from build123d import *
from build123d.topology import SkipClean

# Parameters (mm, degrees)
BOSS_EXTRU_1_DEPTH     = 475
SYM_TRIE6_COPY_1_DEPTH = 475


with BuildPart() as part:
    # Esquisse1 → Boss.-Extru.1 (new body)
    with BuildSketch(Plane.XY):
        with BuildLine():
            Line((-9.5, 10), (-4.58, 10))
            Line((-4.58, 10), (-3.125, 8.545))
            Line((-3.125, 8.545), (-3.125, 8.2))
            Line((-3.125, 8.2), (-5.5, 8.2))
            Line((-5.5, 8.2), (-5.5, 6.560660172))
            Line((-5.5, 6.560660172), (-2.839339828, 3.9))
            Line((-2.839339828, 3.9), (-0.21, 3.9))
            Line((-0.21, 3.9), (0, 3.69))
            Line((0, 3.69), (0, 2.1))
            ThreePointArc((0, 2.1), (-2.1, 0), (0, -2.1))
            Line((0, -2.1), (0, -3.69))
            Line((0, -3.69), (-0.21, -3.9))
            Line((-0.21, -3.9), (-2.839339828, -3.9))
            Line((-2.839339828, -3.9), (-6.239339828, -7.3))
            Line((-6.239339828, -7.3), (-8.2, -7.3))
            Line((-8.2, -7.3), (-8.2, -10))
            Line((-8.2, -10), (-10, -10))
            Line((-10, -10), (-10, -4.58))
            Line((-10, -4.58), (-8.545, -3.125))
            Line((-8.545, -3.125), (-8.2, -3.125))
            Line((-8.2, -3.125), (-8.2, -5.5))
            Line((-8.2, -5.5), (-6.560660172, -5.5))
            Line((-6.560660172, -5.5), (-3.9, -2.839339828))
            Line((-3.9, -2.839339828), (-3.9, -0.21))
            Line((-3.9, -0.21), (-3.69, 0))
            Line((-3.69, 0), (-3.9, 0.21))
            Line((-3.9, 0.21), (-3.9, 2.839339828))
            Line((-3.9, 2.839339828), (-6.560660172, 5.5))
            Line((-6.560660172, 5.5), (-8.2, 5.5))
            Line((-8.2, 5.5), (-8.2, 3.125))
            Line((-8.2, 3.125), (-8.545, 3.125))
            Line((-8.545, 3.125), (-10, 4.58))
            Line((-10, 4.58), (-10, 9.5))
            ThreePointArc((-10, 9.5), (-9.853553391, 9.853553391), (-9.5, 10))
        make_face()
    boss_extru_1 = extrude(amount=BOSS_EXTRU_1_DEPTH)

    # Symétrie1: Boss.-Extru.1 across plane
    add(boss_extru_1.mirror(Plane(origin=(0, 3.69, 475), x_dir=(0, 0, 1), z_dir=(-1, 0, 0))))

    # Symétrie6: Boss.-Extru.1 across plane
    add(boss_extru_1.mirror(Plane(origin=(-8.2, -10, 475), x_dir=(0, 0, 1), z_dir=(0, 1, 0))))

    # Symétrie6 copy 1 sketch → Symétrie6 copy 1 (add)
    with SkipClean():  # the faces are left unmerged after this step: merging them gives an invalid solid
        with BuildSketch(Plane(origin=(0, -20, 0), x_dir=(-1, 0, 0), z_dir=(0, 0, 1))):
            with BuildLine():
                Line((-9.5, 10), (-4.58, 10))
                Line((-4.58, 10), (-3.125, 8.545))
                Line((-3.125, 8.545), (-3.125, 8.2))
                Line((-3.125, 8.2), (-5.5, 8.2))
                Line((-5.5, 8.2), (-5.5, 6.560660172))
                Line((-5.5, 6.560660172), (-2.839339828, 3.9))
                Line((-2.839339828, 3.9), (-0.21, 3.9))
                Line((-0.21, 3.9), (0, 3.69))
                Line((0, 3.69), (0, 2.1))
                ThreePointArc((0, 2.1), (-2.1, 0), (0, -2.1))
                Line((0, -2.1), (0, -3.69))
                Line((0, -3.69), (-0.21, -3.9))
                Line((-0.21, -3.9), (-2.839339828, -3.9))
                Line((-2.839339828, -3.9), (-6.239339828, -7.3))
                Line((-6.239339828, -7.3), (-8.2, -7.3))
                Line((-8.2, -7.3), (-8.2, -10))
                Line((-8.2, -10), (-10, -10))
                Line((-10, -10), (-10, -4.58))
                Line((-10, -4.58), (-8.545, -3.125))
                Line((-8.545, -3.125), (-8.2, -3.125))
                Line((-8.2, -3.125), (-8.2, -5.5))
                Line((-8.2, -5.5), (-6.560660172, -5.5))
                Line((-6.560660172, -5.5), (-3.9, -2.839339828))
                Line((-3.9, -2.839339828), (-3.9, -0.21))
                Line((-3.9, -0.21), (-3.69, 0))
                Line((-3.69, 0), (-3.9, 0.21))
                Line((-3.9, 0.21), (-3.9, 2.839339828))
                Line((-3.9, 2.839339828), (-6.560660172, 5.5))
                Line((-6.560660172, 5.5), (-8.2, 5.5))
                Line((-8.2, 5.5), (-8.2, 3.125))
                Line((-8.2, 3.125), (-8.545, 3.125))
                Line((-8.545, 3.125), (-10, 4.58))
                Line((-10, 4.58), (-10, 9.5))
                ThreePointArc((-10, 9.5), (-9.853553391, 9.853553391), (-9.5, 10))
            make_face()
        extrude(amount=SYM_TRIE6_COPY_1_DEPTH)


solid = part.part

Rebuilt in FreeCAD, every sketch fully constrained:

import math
import FreeCAD as App
import Part
import Sketcher
from FreeCAD import Vector
Q = App.Units.Quantity

doc = App.newDocument("Part")
body = doc.addObject("PartDesign::Body", "Body")

# Sketch on XY plane
sketch1 = body.newObject("Sketcher::SketchObject", "Sketch")
sketch1.AttachmentSupport = (doc.getObject("XY_Plane"), [""])
sketch1.MapMode = "FlatFace"
sketch1.addGeometry([
    Part.LineSegment(Vector(-4.58, 10, 0), Vector(-9.5, 10, 0)),  # 0
    Part.ArcOfCircle(Part.Circle(Vector(-9.5, 9.5, 0), Vector(0, 0, 1), 0.5), math.radians(90), math.radians(180)),  # 1
    Part.LineSegment(Vector(-10, 9.5, 0), Vector(-10, 4.58, 0)),  # 2
    Part.LineSegment(Vector(-10, 4.58, 0), Vector(-8.545, 3.125, 0)),  # 3
    Part.LineSegment(Vector(-8.545, 3.125, 0), Vector(-8.2, 3.125, 0)),  # 4
    Part.LineSegment(Vector(-8.2, 3.125, 0), Vector(-8.2, 5.5, 0)),  # 5
    Part.LineSegment(Vector(-8.2, 5.5, 0), Vector(-6.56066, 5.5, 0)),  # 6
    Part.LineSegment(Vector(-6.56066, 5.5, 0), Vector(-3.9, 2.83934, 0)),  # 7
    Part.LineSegment(Vector(-3.9, 2.83934, 0), Vector(-3.9, 0.21, 0)),  # 8
    Part.LineSegment(Vector(-3.9, 0.21, 0), Vector(-3.69, 0, 0)),  # 9
    Part.LineSegment(Vector(-3.69, 0, 0), Vector(-3.9, -0.21, 0)),  # 10
    Part.LineSegment(Vector(-3.9, -0.21, 0), Vector(-3.9, -2.83934, 0)),  # 11
    Part.LineSegment(Vector(-3.9, -2.83934, 0), Vector(-6.56066, -5.5, 0)),  # 12
    Part.LineSegment(Vector(-6.56066, -5.5, 0), Vector(-8.2, -5.5, 0)),  # 13
    Part.LineSegment(Vector(-8.2, -5.5, 0), Vector(-8.2, -3.125, 0)),  # 14
    Part.LineSegment(Vector(-8.2, -3.125, 0), Vector(-8.545, -3.125, 0)),  # 15
    Part.LineSegment(Vector(-8.545, -3.125, 0), Vector(-10, -4.58, 0)),  # 16
    Part.LineSegment(Vector(-10, -4.58, 0), Vector(-10, -10, 0)),  # 17
    Part.LineSegment(Vector(-10, -10, 0), Vector(-8.2, -10, 0)),  # 18
    Part.LineSegment(Vector(-8.2, -10, 0), Vector(-8.2, -7.3, 0)),  # 19
    Part.LineSegment(Vector(-8.2, -7.3, 0), Vector(-6.23934, -7.3, 0)),  # 20
    Part.LineSegment(Vector(-6.23934, -7.3, 0), Vector(-2.83934, -3.9, 0)),  # 21
    Part.LineSegment(Vector(-2.83934, -3.9, 0), Vector(-0.21, -3.9, 0)),  # 22
    Part.LineSegment(Vector(-0.21, -3.9, 0), Vector(0, -3.69, 0)),  # 23
    Part.LineSegment(Vector(0, -3.69, 0), Vector(0, -2.1, 0)),  # 24
    Part.ArcOfCircle(Part.Circle(Vector(0, 0, 0), Vector(0, 0, 1), 2.1), math.radians(90), math.radians(270)),  # 25
    Part.LineSegment(Vector(0, 2.1, 0), Vector(0, 3.69, 0)),  # 26
    Part.LineSegment(Vector(0, 3.69, 0), Vector(-0.21, 3.9, 0)),  # 27
    Part.LineSegment(Vector(-0.21, 3.9, 0), Vector(-2.83934, 3.9, 0)),  # 28
    Part.LineSegment(Vector(-2.83934, 3.9, 0), Vector(-5.5, 6.56066, 0)),  # 29
    Part.LineSegment(Vector(-5.5, 6.56066, 0), Vector(-5.5, 8.2, 0)),  # 30
    Part.LineSegment(Vector(-5.5, 8.2, 0), Vector(-3.125, 8.2, 0)),  # 31
    Part.LineSegment(Vector(-3.125, 8.2, 0), Vector(-3.125, 8.545, 0)),  # 32
    Part.LineSegment(Vector(-3.125, 8.545, 0), Vector(-4.58, 10, 0)),  # 33
], False)
sketch1.addConstraint([
    Sketcher.Constraint("Tangent", 0, 2, 1, 1),
    Sketcher.Constraint("Tangent", 1, 2, 2, 1),
    Sketcher.Constraint("Coincident", 2, 2, 3, 1),
    Sketcher.Constraint("Coincident", 3, 2, 4, 1),
    Sketcher.Constraint("Coincident", 4, 2, 5, 1),
    Sketcher.Constraint("Coincident", 5, 2, 6, 1),
    Sketcher.Constraint("Coincident", 6, 2, 7, 1),
    Sketcher.Constraint("Coincident", 7, 2, 8, 1),
    Sketcher.Constraint("Coincident", 8, 2, 9, 1),
    Sketcher.Constraint("Coincident", 9, 2, 10, 1),
    Sketcher.Constraint("Coincident", 10, 2, 11, 1),
    Sketcher.Constraint("Coincident", 11, 2, 12, 1),
    Sketcher.Constraint("Coincident", 12, 2, 13, 1),
    Sketcher.Constraint("Coincident", 13, 2, 14, 1),
    Sketcher.Constraint("Coincident", 14, 2, 15, 1),
    Sketcher.Constraint("Coincident", 15, 2, 16, 1),
    Sketcher.Constraint("Coincident", 16, 2, 17, 1),
    Sketcher.Constraint("Coincident", 17, 2, 18, 1),
    Sketcher.Constraint("Coincident", 18, 2, 19, 1),
    Sketcher.Constraint("Coincident", 19, 2, 20, 1),
    Sketcher.Constraint("Coincident", 20, 2, 21, 1),
    Sketcher.Constraint("Coincident", 21, 2, 22, 1),
    Sketcher.Constraint("Coincident", 22, 2, 23, 1),
    Sketcher.Constraint("Coincident", 23, 2, 24, 1),
    Sketcher.Constraint("Coincident", 24, 2, 25, 2),
    Sketcher.Constraint("Coincident", 25, 1, 26, 1),
    Sketcher.Constraint("Coincident", 26, 2, 27, 1),
    Sketcher.Constraint("Coincident", 27, 2, 28, 1),
    Sketcher.Constraint("Coincident", 28, 2, 29, 1),
    Sketcher.Constraint("Coincident", 29, 2, 30, 1),
    Sketcher.Constraint("Coincident", 30, 2, 31, 1),
    Sketcher.Constraint("Coincident", 31, 2, 32, 1),
    Sketcher.Constraint("Coincident", 32, 2, 33, 1),
    Sketcher.Constraint("Coincident", 33, 2, 0, 1),
    Sketcher.Constraint("Horizontal", 0),
    Sketcher.Constraint("Vertical", 2),
    Sketcher.Constraint("Horizontal", 4),
    Sketcher.Constraint("Vertical", 5),
    Sketcher.Constraint("Horizontal", 6),
    Sketcher.Constraint("Vertical", 8),
    Sketcher.Constraint("Vertical", 11),
    Sketcher.Constraint("Horizontal", 13),
    Sketcher.Constraint("Vertical", 14),
    Sketcher.Constraint("Horizontal", 15),
    Sketcher.Constraint("Vertical", 17),
    Sketcher.Constraint("Horizontal", 18),
    Sketcher.Constraint("Vertical", 19),
    Sketcher.Constraint("Horizontal", 20),
    Sketcher.Constraint("Horizontal", 22),
    Sketcher.Constraint("Vertical", 24),
    Sketcher.Constraint("Vertical", 26),
    Sketcher.Constraint("Horizontal", 28),
    Sketcher.Constraint("Vertical", 30),
    Sketcher.Constraint("Horizontal", 31),
    Sketcher.Constraint("Vertical", 32),
    Sketcher.Constraint("Coincident", 25, 3, -1, 1),
    Sketcher.Constraint("Symmetric", 23, 2, 26, 2, -1, 1),
    Sketcher.Constraint("Symmetric", 8, 2, 10, 2, -1),
    Sketcher.Constraint("Symmetric", 6, 2, 12, 2, -1),
    Sketcher.Constraint("Symmetric", 4, 2, 14, 2, -1),
    Sketcher.Constraint("Symmetric", 2, 2, 16, 2, -1),
    Sketcher.Constraint("Symmetric", 22, 2, 27, 2, -1),
    Sketcher.Constraint("PointOnObject", 9, 2, -1),
    Sketcher.Constraint("PointOnObject", 23, 2, -2),
    Sketcher.Constraint("Parallel", 3, 7),
    Sketcher.Constraint("Parallel", 7, 9),
    Sketcher.Constraint("Perpendicular", 9, 10),
    Sketcher.Constraint("Parallel", 10, 12),
    Sketcher.Constraint("Parallel", 12, 16),
    Sketcher.Constraint("Parallel", 16, 21),
    Sketcher.Constraint("Parallel", 21, 23),
    Sketcher.Constraint("Parallel", 27, 29),
    Sketcher.Constraint("Parallel", 29, 33),
    Sketcher.Constraint("Vertical", 14, 2, 18, 2),
    Sketcher.Constraint("Vertical", 21, 2, 28, 2),
    Sketcher.Constraint("Equal", 0, 2),
    Sketcher.Constraint("Equal", 31, 5),
    Sketcher.Constraint("Equal", 28, 8),
    Sketcher.Constraint("Equal", 13, 30),
    Sketcher.Constraint("Equal", 15, 32),
    Sketcher.Constraint("Equal", 10, 23),
    Sketcher.Constraint("Equal", 12, 29),
    Sketcher.Constraint("Equal", 16, 33),
    Sketcher.Constraint("Radius", 1, Q("0.5 mm")),
    Sketcher.Constraint("Radius", 25, Q("2.1 mm")),
    Sketcher.Constraint("DistanceX", 18, 1, 18, 2, Q("1.8 mm")),
    Sketcher.Constraint("DistanceY", 19, 1, 19, 2, Q("2.7 mm")),
    Sketcher.Constraint("DistanceY", -1, 1, 0, 2, Q("10 mm")),
    Sketcher.Constraint("DistanceY", 17, 2, -1, 1, Q("10 mm")),
    Sketcher.Constraint("DistanceY", 5, 2, 1, 3, Q("4 mm")),
    Sketcher.Constraint("DistanceX", 0, 2, 0, 1, Q("4.92 mm")),
    Sketcher.Constraint("DistanceY", 24, 1, 24, 2, Q("1.59 mm")),
    Sketcher.Constraint("DistanceX", 7, 2, -1, 1, Q("3.9 mm")),
    Sketcher.Constraint("DistanceX", 4, 1, 4, 2, Q("0.345 mm")),
    Sketcher.Constraint("DistanceX", 6, 1, 6, 2, Q("1.63934 mm")),
])
pad1 = body.newObject("PartDesign::Pad", "Pad")
pad1.Profile = sketch1
pad1.Length = 475
doc.recompute()

mirrored = body.newObject("PartDesign::Mirrored", "Mirrored")
mirrored.Originals = [pad1]
mirrored.MirrorPlane = (doc.getObject("YZ_Plane"), [""])
body.Tip = mirrored
doc.recompute()

datumplane = body.newObject("PartDesign::Plane", "DatumPlane")
datumplane.AttachmentSupport = (doc.getObject("XZ_Plane"), [""])
datumplane.MapMode = "FlatFace"
datumplane.AttachmentOffset = App.Placement(Vector(0, 0, 10), App.Rotation())
mirrored2 = body.newObject("PartDesign::Mirrored", "Mirrored001")
mirrored2.Originals = [pad1]
mirrored2.MirrorPlane = (datumplane, [""])
body.Tip = mirrored2

# Sketch on XY plane
sketch2 = body.newObject("Sketcher::SketchObject", "Sketch001")
sketch2.AttachmentSupport = (doc.getObject("XY_Plane"), [""])
sketch2.MapMode = "FlatFace"
sketch2.addGeometry([
    Part.LineSegment(Vector(4.58, -30, 0), Vector(9.5, -30, 0)),  # 0
    Part.ArcOfCircle(Part.Circle(Vector(9.5, -29.5, 0), Vector(0, 0, 1), 0.5), math.radians(-90), math.radians(0)),  # 1
    Part.LineSegment(Vector(10, -29.5, 0), Vector(10, -24.58, 0)),  # 2
    Part.LineSegment(Vector(10, -24.58, 0), Vector(8.545, -23.125, 0)),  # 3
    Part.LineSegment(Vector(8.545, -23.125, 0), Vector(8.2, -23.125, 0)),  # 4
    Part.LineSegment(Vector(8.2, -23.125, 0), Vector(8.2, -25.5, 0)),  # 5
    Part.LineSegment(Vector(8.2, -25.5, 0), Vector(6.56066, -25.5, 0)),  # 6
    Part.LineSegment(Vector(6.56066, -25.5, 0), Vector(3.9, -22.83934, 0)),  # 7
    Part.LineSegment(Vector(3.9, -22.83934, 0), Vector(3.9, -20.21, 0)),  # 8
    Part.LineSegment(Vector(3.9, -20.21, 0), Vector(3.69, -20, 0)),  # 9
    Part.LineSegment(Vector(3.69, -20, 0), Vector(3.9, -19.79, 0)),  # 10
    Part.LineSegment(Vector(3.9, -19.79, 0), Vector(3.9, -17.16066, 0)),  # 11
    Part.LineSegment(Vector(3.9, -17.16066, 0), Vector(6.56066, -14.5, 0)),  # 12
    Part.LineSegment(Vector(6.56066, -14.5, 0), Vector(8.2, -14.5, 0)),  # 13
    Part.LineSegment(Vector(8.2, -14.5, 0), Vector(8.2, -16.875, 0)),  # 14
    Part.LineSegment(Vector(8.2, -16.875, 0), Vector(8.545, -16.875, 0)),  # 15
    Part.LineSegment(Vector(8.545, -16.875, 0), Vector(10, -15.42, 0)),  # 16
    Part.LineSegment(Vector(10, -15.42, 0), Vector(10, -10, 0)),  # 17
    Part.LineSegment(Vector(10, -10, 0), Vector(8.2, -10, 0)),  # 18
    Part.LineSegment(Vector(8.2, -10, 0), Vector(8.2, -12.7, 0)),  # 19
    Part.LineSegment(Vector(8.2, -12.7, 0), Vector(6.23934, -12.7, 0)),  # 20
    Part.LineSegment(Vector(6.23934, -12.7, 0), Vector(2.83934, -16.1, 0)),  # 21
    Part.LineSegment(Vector(2.83934, -16.1, 0), Vector(0.21, -16.1, 0)),  # 22
    Part.LineSegment(Vector(0.21, -16.1, 0), Vector(0, -16.31, 0)),  # 23
    Part.LineSegment(Vector(0, -16.31, 0), Vector(0, -17.9, 0)),  # 24
    Part.ArcOfCircle(Part.Circle(Vector(0, -20, 0), Vector(0, 0, 1), 2.1), math.radians(-90), math.radians(90)),  # 25
    Part.LineSegment(Vector(0, -22.1, 0), Vector(0, -23.69, 0)),  # 26
    Part.LineSegment(Vector(0, -23.69, 0), Vector(0.21, -23.9, 0)),  # 27
    Part.LineSegment(Vector(0.21, -23.9, 0), Vector(2.83934, -23.9, 0)),  # 28
    Part.LineSegment(Vector(2.83934, -23.9, 0), Vector(5.5, -26.56066, 0)),  # 29
    Part.LineSegment(Vector(5.5, -26.56066, 0), Vector(5.5, -28.2, 0)),  # 30
    Part.LineSegment(Vector(5.5, -28.2, 0), Vector(3.125, -28.2, 0)),  # 31
    Part.LineSegment(Vector(3.125, -28.2, 0), Vector(3.125, -28.545, 0)),  # 32
    Part.LineSegment(Vector(3.125, -28.545, 0), Vector(4.58, -30, 0)),  # 33
], False)
sketch2.addConstraint([
    Sketcher.Constraint("Tangent", 0, 2, 1, 1),
    Sketcher.Constraint("Tangent", 1, 2, 2, 1),
    Sketcher.Constraint("Coincident", 2, 2, 3, 1),
    Sketcher.Constraint("Coincident", 3, 2, 4, 1),
    Sketcher.Constraint("Coincident", 4, 2, 5, 1),
    Sketcher.Constraint("Coincident", 5, 2, 6, 1),
    Sketcher.Constraint("Coincident", 6, 2, 7, 1),
    Sketcher.Constraint("Coincident", 7, 2, 8, 1),
    Sketcher.Constraint("Coincident", 8, 2, 9, 1),
    Sketcher.Constraint("Coincident", 9, 2, 10, 1),
    Sketcher.Constraint("Coincident", 10, 2, 11, 1),
    Sketcher.Constraint("Coincident", 11, 2, 12, 1),
    Sketcher.Constraint("Coincident", 12, 2, 13, 1),
    Sketcher.Constraint("Coincident", 13, 2, 14, 1),
    Sketcher.Constraint("Coincident", 14, 2, 15, 1),
    Sketcher.Constraint("Coincident", 15, 2, 16, 1),
    Sketcher.Constraint("Coincident", 16, 2, 17, 1),
    Sketcher.Constraint("Coincident", 17, 2, 18, 1),
    Sketcher.Constraint("Coincident", 18, 2, 19, 1),
    Sketcher.Constraint("Coincident", 19, 2, 20, 1),
    Sketcher.Constraint("Coincident", 20, 2, 21, 1),
    Sketcher.Constraint("Coincident", 21, 2, 22, 1),
    Sketcher.Constraint("Coincident", 22, 2, 23, 1),
    Sketcher.Constraint("Coincident", 23, 2, 24, 1),
    Sketcher.Constraint("Coincident", 24, 2, 25, 2),
    Sketcher.Constraint("Coincident", 25, 1, 26, 1),
    Sketcher.Constraint("Coincident", 26, 2, 27, 1),
    Sketcher.Constraint("Coincident", 27, 2, 28, 1),
    Sketcher.Constraint("Coincident", 28, 2, 29, 1),
    Sketcher.Constraint("Coincident", 29, 2, 30, 1),
    Sketcher.Constraint("Coincident", 30, 2, 31, 1),
    Sketcher.Constraint("Coincident", 31, 2, 32, 1),
    Sketcher.Constraint("Coincident", 32, 2, 33, 1),
    Sketcher.Constraint("Coincident", 33, 2, 0, 1),
    Sketcher.Constraint("Horizontal", 0),
    Sketcher.Constraint("Vertical", 2),
    Sketcher.Constraint("Horizontal", 4),
    Sketcher.Constraint("Vertical", 5),
    Sketcher.Constraint("Horizontal", 6),
    Sketcher.Constraint("Vertical", 8),
    Sketcher.Constraint("Vertical", 11),
    Sketcher.Constraint("Horizontal", 13),
    Sketcher.Constraint("Vertical", 14),
    Sketcher.Constraint("Horizontal", 15),
    Sketcher.Constraint("Vertical", 17),
    Sketcher.Constraint("Horizontal", 18),
    Sketcher.Constraint("Vertical", 19),
    Sketcher.Constraint("Horizontal", 20),
    Sketcher.Constraint("Horizontal", 22),
    Sketcher.Constraint("Vertical", 24),
    Sketcher.Constraint("Vertical", 26),
    Sketcher.Constraint("Horizontal", 28),
    Sketcher.Constraint("Vertical", 30),
    Sketcher.Constraint("Horizontal", 31),
    Sketcher.Constraint("Vertical", 32),
    Sketcher.Constraint("PointOnObject", 25, 3, -2),
    Sketcher.Constraint("PointOnObject", 23, 2, -2),
    Sketcher.Constraint("PointOnObject", 25, 1, -2),
    Sketcher.Constraint("Parallel", 3, 7),
    Sketcher.Constraint("Parallel", 7, 9),
    Sketcher.Constraint("Perpendicular", 9, 10),
    Sketcher.Constraint("Parallel", 10, 12),
    Sketcher.Constraint("Parallel", 12, 16),
    Sketcher.Constraint("Parallel", 16, 21),
    Sketcher.Constraint("Parallel", 21, 23),
    Sketcher.Constraint("Perpendicular", 23, 27),
    Sketcher.Constraint("Parallel", 27, 29),
    Sketcher.Constraint("Parallel", 29, 33),
    Sketcher.Constraint("Horizontal", 25, 3, 9, 2),
    Sketcher.Constraint("Vertical", 8, 2, 10, 2),
    Sketcher.Constraint("Vertical", 6, 2, 12, 2),
    Sketcher.Constraint("Vertical", 5, 2, 13, 2),
    Sketcher.Constraint("Vertical", 3, 2, 15, 2),
    Sketcher.Constraint("Vertical", 2, 2, 16, 2),
    Sketcher.Constraint("Vertical", 14, 2, 18, 2),
    Sketcher.Constraint("Vertical", 22, 2, 27, 2),
    Sketcher.Constraint("Vertical", 21, 2, 28, 2),
    Sketcher.Constraint("Equal", 0, 2),
    Sketcher.Constraint("Equal", 31, 5),
    Sketcher.Constraint("Equal", 28, 8),
    Sketcher.Constraint("Equal", 8, 11),
    Sketcher.Constraint("Equal", 5, 14),
    Sketcher.Constraint("Equal", 24, 26),
    Sketcher.Constraint("Equal", 13, 30),
    Sketcher.Constraint("Equal", 15, 32),
    Sketcher.Constraint("Equal", 9, 10),
    Sketcher.Constraint("Equal", 10, 23),
    Sketcher.Constraint("Equal", 12, 29),
    Sketcher.Constraint("Equal", 16, 33),
    Sketcher.Constraint("Radius", 1, Q("0.5 mm")),
    Sketcher.Constraint("Radius", 25, Q("2.1 mm")),
    Sketcher.Constraint("DistanceX", 18, 2, 18, 1, Q("1.8 mm")),
    Sketcher.Constraint("DistanceY", 19, 2, 19, 1, Q("2.7 mm")),
    Sketcher.Constraint("DistanceY", 25, 3, -1, 1, Q("20 mm")),
    Sketcher.Constraint("DistanceY", 0, 2, -1, 1, Q("30 mm")),
    Sketcher.Constraint("DistanceY", 17, 2, -1, 1, Q("10 mm")),
    Sketcher.Constraint("DistanceY", 1, 3, 5, 2, Q("4 mm")),
    Sketcher.Constraint("DistanceX", 0, 1, 0, 2, Q("4.92 mm")),
    Sketcher.Constraint("DistanceY", 24, 2, 24, 1, Q("1.59 mm")),
    Sketcher.Constraint("DistanceX", -1, 1, 7, 2, Q("3.9 mm")),
    Sketcher.Constraint("DistanceX", 4, 2, 4, 1, Q("0.345 mm")),
    Sketcher.Constraint("DistanceX", 6, 2, 6, 1, Q("1.63934 mm")),
])
pad2 = body.newObject("PartDesign::Pad", "Pad001")
pad2.Profile = sketch2
pad2.Length = 475

doc.recompute()
